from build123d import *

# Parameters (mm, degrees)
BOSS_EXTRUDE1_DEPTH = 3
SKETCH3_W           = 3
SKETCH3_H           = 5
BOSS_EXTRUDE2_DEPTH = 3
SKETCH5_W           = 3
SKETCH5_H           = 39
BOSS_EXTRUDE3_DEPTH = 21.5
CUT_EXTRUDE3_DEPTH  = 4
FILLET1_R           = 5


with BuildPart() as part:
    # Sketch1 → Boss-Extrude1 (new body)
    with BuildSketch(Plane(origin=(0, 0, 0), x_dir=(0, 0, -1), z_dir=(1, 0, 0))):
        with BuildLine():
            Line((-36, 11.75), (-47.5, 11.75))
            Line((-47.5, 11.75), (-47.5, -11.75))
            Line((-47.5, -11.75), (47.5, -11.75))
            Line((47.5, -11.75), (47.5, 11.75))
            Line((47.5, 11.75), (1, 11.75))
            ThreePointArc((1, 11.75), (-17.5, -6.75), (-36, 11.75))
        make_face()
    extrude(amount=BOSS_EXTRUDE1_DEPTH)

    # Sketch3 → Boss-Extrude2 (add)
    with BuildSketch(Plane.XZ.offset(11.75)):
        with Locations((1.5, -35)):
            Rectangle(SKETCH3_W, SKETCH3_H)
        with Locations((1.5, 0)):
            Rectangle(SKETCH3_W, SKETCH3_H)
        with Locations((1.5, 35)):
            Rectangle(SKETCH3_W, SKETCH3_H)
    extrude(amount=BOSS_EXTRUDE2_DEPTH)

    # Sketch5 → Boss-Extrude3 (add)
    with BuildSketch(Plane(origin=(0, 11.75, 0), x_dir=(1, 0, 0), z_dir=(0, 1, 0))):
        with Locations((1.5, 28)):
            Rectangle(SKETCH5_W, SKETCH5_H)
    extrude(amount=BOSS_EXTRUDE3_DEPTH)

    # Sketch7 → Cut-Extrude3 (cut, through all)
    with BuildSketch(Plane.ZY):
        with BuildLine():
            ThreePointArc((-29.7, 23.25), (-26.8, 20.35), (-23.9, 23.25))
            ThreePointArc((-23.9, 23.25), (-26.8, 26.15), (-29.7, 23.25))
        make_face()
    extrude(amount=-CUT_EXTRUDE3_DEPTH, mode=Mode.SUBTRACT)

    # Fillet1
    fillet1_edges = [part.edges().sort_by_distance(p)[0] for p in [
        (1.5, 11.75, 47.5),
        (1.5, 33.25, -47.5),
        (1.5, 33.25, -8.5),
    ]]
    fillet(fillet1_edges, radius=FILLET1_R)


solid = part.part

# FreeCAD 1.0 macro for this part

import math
import FreeCAD as App
import Part
import Sketcher
Q = App.Units.Quantity


def edges_at(feature, points):
    """Names of the edges that pass closest to the given points."""
    edges = feature.Shape.Edges
    near = lambda p: min(range(len(edges)), key=lambda i: edges[i].distToShape(Part.Vertex(*p))[0])
    return sorted({f"Edge{near(p) + 1}" for p in points})

doc = App.newDocument("Part")
params = doc.addObject("Spreadsheet::Sheet", "Params")
for row, (alias, value) in enumerate([
    ("sketch1_radius", "18.5 mm"),
    ("sketch1_height", "95 mm"),
    ("sketch1_width", "23.5 mm"),
    ("sketch1_height2", "11.5 mm"),
    ("pad1_length", "3 mm"),
    ("sketch2_width", "3 mm"),
    ("sketch2_height", "5 mm"),
    ("pad2_length", "3 mm"),
    ("sketch3_width", "3 mm"),
    ("sketch3_height", "39 mm"),
    ("pad3_length", "21.5 mm"),
    ("sketch4_diameter", "5.8 mm"),
    ("fillet_radius", "5 mm"),
], start=1):
    params.set(f"A{row}", alias)
    params.set(f"B{row}", "=" + value)
    params.setAlias(f"B{row}", alias)

body = doc.addObject("PartDesign::Body", "Body")

# Sketch on YZ plane
sketch1 = body.newObject("Sketcher::SketchObject", "Sketch")
sketch1.AttachmentSupport = (doc.getObject("YZ_Plane"), [""])
sketch1.MapMode = "FlatFace"
sketch1.addGeometry(Part.LineSegment(App.Vector(12, 36, 0), App.Vector(12, 48, 0)), False)
sketch1.addGeometry(Part.LineSegment(App.Vector(12, 48, 0), App.Vector(-12, 48, 0)), False)
sketch1.addGeometry(Part.LineSegment(App.Vector(-12, 48, 0), App.Vector(-12, -48, 0)), False)
sketch1.addGeometry(Part.LineSegment(App.Vector(-12, -48, 0), App.Vector(12, -48, 0)), False)
sketch1.addGeometry(Part.LineSegment(App.Vector(12, -48, 0), App.Vector(12, -1, 0)), False)
sketch1.addGeometry(Part.ArcOfCircle(Part.Circle(App.Vector(12, 18, 0), App.Vector(0, 0, 1), 18), math.radians(90), math.radians(270)), False)
sketch1.addConstraint(Sketcher.Constraint("Coincident", 0, 2, 1, 1))
sketch1.addConstraint(Sketcher.Constraint("Coincident", 1, 2, 2, 1))
sketch1.addConstraint(Sketcher.Constraint("Coincident", 2, 2, 3, 1))
sketch1.addConstraint(Sketcher.Constraint("Coincident", 3, 2, 4, 1))
sketch1.addConstraint(Sketcher.Constraint("Coincident", 4, 2, 5, 2))
sketch1.addConstraint(Sketcher.Constraint("Coincident", 5, 1, 0, 1))
sketch1.addConstraint(Sketcher.Constraint("Vertical", 0))
sketch1.addConstraint(Sketcher.Constraint("Horizontal", 1))
sketch1.addConstraint(Sketcher.Constraint("Vertical", 2))
sketch1.addConstraint(Sketcher.Constraint("Horizontal", 3))
sketch1.addConstraint(Sketcher.Constraint("Vertical", 4))
sketch1.addConstraint(Sketcher.Constraint("Symmetric", 0, 2, 2, 2, -1, 1))
sketch1.addConstraint(Sketcher.Constraint("Vertical", 5, 3, 0, 2))
sketch1.addConstraint(Sketcher.Constraint("Vertical", 0, 2, 3, 2))
sketch1.addConstraint(Sketcher.Constraint("Radius", 5, Q("18.5 mm")))
sketch1.addConstraint(Sketcher.Constraint("DistanceY", 2, 2, 2, 1, Q("95 mm")))
sketch1.addConstraint(Sketcher.Constraint("DistanceX", 1, 2, 1, 1, Q("23.5 mm")))
sketch1.addConstraint(Sketcher.Constraint("DistanceY", 0, 1, 0, 2, Q("11.5 mm")))
sketch1.setExpression("Constraints[14]", "Params.sketch1_radius")
sketch1.setExpression("Constraints[15]", "Params.sketch1_height")
sketch1.setExpression("Constraints[16]", "Params.sketch1_width")
sketch1.setExpression("Constraints[17]", "Params.sketch1_height2")
pad1 = body.newObject("PartDesign::Pad", "Pad")
pad1.Profile = sketch1
pad1.setExpression("Length", "Params.pad1_length")

# Sketch on XZ plane
sketch2 = body.newObject("Sketcher::SketchObject", "Sketch001")
sketch2.AttachmentSupport = (doc.getObject("XZ_Plane"), [""])
sketch2.MapMode = "FlatFace"
sketch2.AttachmentOffset = App.Placement(App.Vector(0, 0, 11.75), App.Rotation())
sketch2.addGeometry(Part.LineSegment(App.Vector(0, -32.5, 0), App.Vector(0, -37.5, 0)), False)
sketch2.addGeometry(Part.LineSegment(App.Vector(0, -37.5, 0), App.Vector(3, -37.5, 0)), False)
sketch2.addGeometry(Part.LineSegment(App.Vector(3, -37.5, 0), App.Vector(3, -32.5, 0)), False)
sketch2.addGeometry(Part.LineSegment(App.Vector(3, -32.5, 0), App.Vector(0, -32.5, 0)), False)
sketch2.addGeometry(Part.LineSegment(App.Vector(0, 2.5, 0), App.Vector(0, -2.5, 0)), False)
sketch2.addGeometry(Part.LineSegment(App.Vector(0, -2.5, 0), App.Vector(3, -2.5, 0)), False)
sketch2.addGeometry(Part.LineSegment(App.Vector(3, -2.5, 0), App.Vector(3, 2.5, 0)), False)
sketch2.addGeometry(Part.LineSegment(App.Vector(3, 2.5, 0), App.Vector(0, 2.5, 0)), False)
sketch2.addGeometry(Part.LineSegment(App.Vector(0, 37.5, 0), App.Vector(0, 32.5, 0)), False)
sketch2.addGeometry(Part.LineSegment(App.Vector(0, 32.5, 0), App.Vector(3, 32.5, 0)), False)
sketch2.addGeometry(Part.LineSegment(App.Vector(3, 32.5, 0), App.Vector(3, 37.5, 0)), False)
sketch2.addGeometry(Part.LineSegment(App.Vector(3, 37.5, 0), App.Vector(0, 37.5, 0)), False)
sketch2.addConstraint(Sketcher.Constraint("Coincident", 0, 2, 1, 1))
sketch2.addConstraint(Sketcher.Constraint("Coincident", 1, 2, 2, 1))
sketch2.addConstraint(Sketcher.Constraint("Coincident", 2, 2, 3, 1))
sketch2.addConstraint(Sketcher.Constraint("Coincident", 3, 2, 0, 1))
sketch2.addConstraint(Sketcher.Constraint("Coincident", 4, 2, 5, 1))
sketch2.addConstraint(Sketcher.Constraint("Coincident", 5, 2, 6, 1))
sketch2.addConstraint(Sketcher.Constraint("Coincident", 6, 2, 7, 1))
sketch2.addConstraint(Sketcher.Constraint("Coincident", 7, 2, 4, 1))
sketch2.addConstraint(Sketcher.Constraint("Coincident", 8, 2, 9, 1))
sketch2.addConstraint(Sketcher.Constraint("Coincident", 9, 2, 10, 1))
sketch2.addConstraint(Sketcher.Constraint("Coincident", 10, 2, 11, 1))
sketch2.addConstraint(Sketcher.Constraint("Coincident", 11, 2, 8, 1))
sketch2.addConstraint(Sketcher.Constraint("Vertical", 0))
sketch2.addConstraint(Sketcher.Constraint("Horizontal", 1))
sketch2.addConstraint(Sketcher.Constraint("Vertical", 2))
sketch2.addConstraint(Sketcher.Constraint("Horizontal", 3))
sketch2.addConstraint(Sketcher.Constraint("Vertical", 4))
sketch2.addConstraint(Sketcher.Constraint("Horizontal", 5))
sketch2.addConstraint(Sketcher.Constraint("Vertical", 6))
sketch2.addConstraint(Sketcher.Constraint("Horizontal", 7))
sketch2.addConstraint(Sketcher.Constraint("Vertical", 8))
sketch2.addConstraint(Sketcher.Constraint("Horizontal", 9))
sketch2.addConstraint(Sketcher.Constraint("Vertical", 10))
sketch2.addConstraint(Sketcher.Constraint("Horizontal", 11))
sketch2.addConstraint(Sketcher.Constraint("Symmetric", 4, 2, 7, 2, -1, 1))
sketch2.addConstraint(Sketcher.Constraint("Symmetric", 3, 2, 8, 2, -1, 1))
sketch2.addConstraint(Sketcher.Constraint("Symmetric", 1, 2, 10, 2, -1))
sketch2.addConstraint(Sketcher.Constraint("PointOnObject", 0, 2, -2))
sketch2.addConstraint(Sketcher.Constraint("Vertical", 2, 2, 5, 2))
sketch2.addConstraint(Sketcher.Constraint("Equal", 2, 4))
sketch2.addConstraint(Sketcher.Constraint("DistanceX", 1, 1, 1, 2, Q("3 mm")))
sketch2.addConstraint(Sketcher.Constraint("DistanceY", 0, 2, 0, 1, Q("5 mm")))
sketch2.addConstraint(Sketcher.Constraint("DistanceY", 3, 2, 4, 2, Q("30 mm")))
sketch2.setExpression("Constraints[30]", "Params.sketch2_width")
sketch2.setExpression("Constraints[31]", "Params.sketch2_height")
pad2 = body.newObject("PartDesign::Pad", "Pad001")
pad2.Profile = sketch2
pad2.setExpression("Length", "Params.pad2_length")

# Sketch on XZ plane
sketch3 = body.newObject("Sketcher::SketchObject", "Sketch002")
sketch3.AttachmentSupport = (doc.getObject("XZ_Plane"), [""])
sketch3.MapMode = "FlatFace"
sketch3.AttachmentOffset = App.Placement(App.Vector(0, 0, -11.75), App.Rotation())
sketch3.addGeometry(Part.LineSegment(App.Vector(0, -47.5, 0), App.Vector(0, -8.5, 0)), False)
sketch3.addGeometry(Part.LineSegment(App.Vector(0, -8.5, 0), App.Vector(3, -8.5, 0)), False)
sketch3.addGeometry(Part.LineSegment(App.Vector(3, -8.5, 0), App.Vector(3, -47.5, 0)), False)
sketch3.addGeometry(Part.LineSegment(App.Vector(3, -47.5, 0), App.Vector(0, -47.5, 0)), False)
sketch3.addConstraint(Sketcher.Constraint("Coincident", 0, 2, 1, 1))
sketch3.addConstraint(Sketcher.Constraint("Coincident", 1, 2, 2, 1))
sketch3.addConstraint(Sketcher.Constraint("Coincident", 2, 2, 3, 1))
sketch3.addConstraint(Sketcher.Constraint("Coincident", 3, 2, 0, 1))
sketch3.addConstraint(Sketcher.Constraint("Vertical", 0))
sketch3.addConstraint(Sketcher.Constraint("Horizontal", 1))
sketch3.addConstraint(Sketcher.Constraint("Vertical", 2))
sketch3.addConstraint(Sketcher.Constraint("Horizontal", 3))
sketch3.addConstraint(Sketcher.Constraint("PointOnObject", 0, 2, -2))
sketch3.addConstraint(Sketcher.Constraint("DistanceX", 1, 1, 1, 2, Q("3 mm")))
sketch3.addConstraint(Sketcher.Constraint("DistanceY", 0, 1, 0, 2, Q("39 mm")))
sketch3.addConstraint(Sketcher.Constraint("DistanceY", 0, 2, -1, 1, Q("8.5 mm")))
sketch3.setExpression("Constraints[9]", "Params.sketch3_width")
sketch3.setExpression("Constraints[10]", "Params.sketch3_height")
pad3 = body.newObject("PartDesign::Pad", "Pad002")
pad3.Profile = sketch3
pad3.setExpression("Length", "Params.pad3_length")
pad3.Reversed = True

# Sketch on YZ plane
sketch4 = body.newObject("Sketcher::SketchObject", "Sketch003")
sketch4.AttachmentSupport = (doc.getObject("YZ_Plane"), [""])
sketch4.MapMode = "FlatFace"
sketch4.addGeometry(Part.Circle(App.Vector(23.2, -26.8, 0), App.Vector(0, 0, 1), 2.9), False)
sketch4.addConstraint(Sketcher.Constraint("Diameter", 0, Q("5.8 mm")))
sketch4.addConstraint(Sketcher.Constraint("DistanceY", 0, 3, -1, 1, Q("26.8 mm")))
sketch4.addConstraint(Sketcher.Constraint("DistanceX", -1, 1, 0, 3, Q("23.25 mm")))
sketch4.setExpression("Constraints[0]", "Params.sketch4_diameter")
pocket1 = body.newObject("PartDesign::Pocket", "Pocket")
pocket1.Profile = sketch4
pocket1.Type = "ThroughAll"
pocket1.Reversed = True
doc.recompute()

fillet = body.newObject("PartDesign::Fillet", "Fillet")
fillet.Base = (pocket1, edges_at(pocket1, [(1.5, 11.75, 47.5), (1.5, 33.25, -47.5), (1.5, 33.25, -8.5)]))
fillet.setExpression("Radius", "Params.fillet_radius")

doc.recompute()
